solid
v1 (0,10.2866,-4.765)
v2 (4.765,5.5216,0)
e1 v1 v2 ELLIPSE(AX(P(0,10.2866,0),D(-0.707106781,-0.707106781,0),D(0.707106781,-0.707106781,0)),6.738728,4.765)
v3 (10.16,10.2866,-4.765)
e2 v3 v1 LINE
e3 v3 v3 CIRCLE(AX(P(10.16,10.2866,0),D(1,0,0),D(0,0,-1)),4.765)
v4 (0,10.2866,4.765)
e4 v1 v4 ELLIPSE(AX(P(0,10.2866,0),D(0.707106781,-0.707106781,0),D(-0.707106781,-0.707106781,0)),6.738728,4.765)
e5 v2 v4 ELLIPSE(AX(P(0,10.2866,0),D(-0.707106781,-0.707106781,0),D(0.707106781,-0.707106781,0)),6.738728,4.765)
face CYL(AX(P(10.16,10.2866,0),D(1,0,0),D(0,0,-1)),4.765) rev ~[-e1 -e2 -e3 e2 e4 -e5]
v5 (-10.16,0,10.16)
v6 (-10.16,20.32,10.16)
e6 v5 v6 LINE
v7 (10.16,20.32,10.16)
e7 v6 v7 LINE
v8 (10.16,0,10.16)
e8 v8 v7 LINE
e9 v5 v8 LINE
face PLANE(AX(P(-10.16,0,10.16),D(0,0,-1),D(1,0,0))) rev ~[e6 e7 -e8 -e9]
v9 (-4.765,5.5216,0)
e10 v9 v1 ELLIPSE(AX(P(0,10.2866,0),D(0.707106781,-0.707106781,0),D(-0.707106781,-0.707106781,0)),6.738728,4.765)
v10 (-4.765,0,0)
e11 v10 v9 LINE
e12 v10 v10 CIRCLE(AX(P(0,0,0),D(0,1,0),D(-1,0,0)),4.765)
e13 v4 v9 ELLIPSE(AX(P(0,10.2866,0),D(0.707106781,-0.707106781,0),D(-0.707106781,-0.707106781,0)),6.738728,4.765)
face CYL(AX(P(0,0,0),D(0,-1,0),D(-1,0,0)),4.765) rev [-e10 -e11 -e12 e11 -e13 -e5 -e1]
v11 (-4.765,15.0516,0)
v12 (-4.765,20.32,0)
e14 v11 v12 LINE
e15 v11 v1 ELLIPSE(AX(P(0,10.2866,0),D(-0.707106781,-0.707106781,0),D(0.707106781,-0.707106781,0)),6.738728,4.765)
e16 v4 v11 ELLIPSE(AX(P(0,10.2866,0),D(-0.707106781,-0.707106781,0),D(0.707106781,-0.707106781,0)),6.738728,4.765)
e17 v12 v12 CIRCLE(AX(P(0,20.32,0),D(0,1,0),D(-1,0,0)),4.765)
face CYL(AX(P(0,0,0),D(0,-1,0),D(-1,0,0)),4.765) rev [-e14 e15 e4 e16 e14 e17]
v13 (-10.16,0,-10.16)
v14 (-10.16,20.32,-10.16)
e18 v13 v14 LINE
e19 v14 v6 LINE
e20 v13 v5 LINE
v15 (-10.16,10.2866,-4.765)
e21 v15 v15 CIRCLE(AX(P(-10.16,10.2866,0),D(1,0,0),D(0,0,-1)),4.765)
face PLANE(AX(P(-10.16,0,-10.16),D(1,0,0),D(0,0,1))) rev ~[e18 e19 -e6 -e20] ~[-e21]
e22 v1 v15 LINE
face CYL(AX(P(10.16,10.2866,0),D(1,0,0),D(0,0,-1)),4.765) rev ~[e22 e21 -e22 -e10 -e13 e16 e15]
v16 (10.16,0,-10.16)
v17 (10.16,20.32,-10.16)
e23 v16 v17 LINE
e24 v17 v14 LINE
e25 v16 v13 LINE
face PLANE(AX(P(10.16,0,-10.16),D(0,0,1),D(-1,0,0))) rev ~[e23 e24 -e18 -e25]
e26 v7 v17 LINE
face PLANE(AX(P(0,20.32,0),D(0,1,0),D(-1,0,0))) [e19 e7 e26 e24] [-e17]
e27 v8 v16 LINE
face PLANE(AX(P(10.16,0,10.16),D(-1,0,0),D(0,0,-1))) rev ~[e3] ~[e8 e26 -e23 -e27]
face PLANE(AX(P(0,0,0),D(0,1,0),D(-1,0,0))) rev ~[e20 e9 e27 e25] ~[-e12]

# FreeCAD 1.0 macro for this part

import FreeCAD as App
import Part
import Sketcher
from FreeCAD import Vector
Q = App.Units.Quantity

doc = App.newDocument("Part")
body = doc.addObject("PartDesign::Body", "Body")

sketch1 = body.newObject("Sketcher::SketchObject", "Sketch")
sketch1.AttachmentSupport = (doc.getObject("XZ_Plane"), [""])
sketch1.MapMode = "FlatFace"
sketch1.addGeometry([
    Part.LineSegment(Vector(-10.2, -10.2, 0), Vector(-10.2, 10.2, 0)),
    Part.LineSegment(Vector(-10.2, 10.2, 0), Vector(10.2, 10.2, 0)),
    Part.LineSegment(Vector(10.2, 10.2, 0), Vector(10.2, -10.2, 0)),
    Part.LineSegment(Vector(10.2, -10.2, 0), Vector(-10.2, -10.2, 0)),
    Part.Circle(Vector(0, 0, 0), Vector(0, 0, 1), 4.8),
], False)
sketch1.addConstraint([
    Sketcher.Constraint("Coincident", 0, 2, 1, 1),
    Sketcher.Constraint("Coincident", 1, 2, 2, 1),
    Sketcher.Constraint("Coincident", 2, 2, 3, 1),
    Sketcher.Constraint("Coincident", 3, 2, 0, 1),
    Sketcher.Constraint("Vertical", 0),
    Sketcher.Constraint("Horizontal", 1),
    Sketcher.Constraint("Vertical", 2),
    Sketcher.Constraint("Horizontal", 3),
    Sketcher.Constraint("Coincident", 4, 3, -1, 1),
    Sketcher.Constraint("Symmetric", 0, 2, 2, 2, -1, 1),
    Sketcher.Constraint("Equal", 3, 0),
    Sketcher.Constraint("DistanceX", 1, 1, 1, 2, Q("0.8 in")),
    Sketcher.Constraint("Diameter", 4, Q("0.3752 in")),
])
pad1 = body.newObject("PartDesign::Pad", "Pad")
pad1.Profile = sketch1
pad1.Length = Q("0.8 in")
pad1.Reversed = True

sketch2 = body.newObject("Sketcher::SketchObject", "Sketch001")
sketch2.AttachmentSupport = (doc.getObject("YZ_Plane"), [""])
sketch2.MapMode = "FlatFace"
sketch2.AttachmentOffset = App.Placement(Vector(0, 0, 0.4 * 25.4), App.Rotation())
sketch2.addGeometry(Part.Circle(Vector(10.3, 0, 0), Vector(0, 0, 1), 4.8), False)
sketch2.addConstraint([
    Sketcher.Constraint("PointOnObject", 0, 3, -1),
    Sketcher.Constraint("Diameter", 0, Q("0.3752 in")),
    Sketcher.Constraint("DistanceX", -1, 1, 0, 3, 10.2866),
])
pocket1 = body.newObject("PartDesign::Pocket", "Pocket")
pocket1.Profile = sketch2
pocket1.Length = Q("0.8 in")

doc.recompute()
